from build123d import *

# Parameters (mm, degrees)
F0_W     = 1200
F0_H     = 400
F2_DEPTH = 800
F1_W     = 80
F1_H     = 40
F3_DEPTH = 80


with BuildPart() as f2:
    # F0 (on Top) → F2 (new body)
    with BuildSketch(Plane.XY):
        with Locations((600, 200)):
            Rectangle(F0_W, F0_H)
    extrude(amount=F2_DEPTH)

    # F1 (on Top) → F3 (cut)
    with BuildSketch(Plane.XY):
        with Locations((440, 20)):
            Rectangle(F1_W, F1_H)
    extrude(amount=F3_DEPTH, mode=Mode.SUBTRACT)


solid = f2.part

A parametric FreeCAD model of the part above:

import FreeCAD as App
import Part
import Sketcher
from FreeCAD import Vector


def add_polygon(sketch, points):
    """Adds a closed chain of lines whose ends are joined by coincident constraints."""
    first, n = sketch.GeometryCount, len(points)
    for a, b in zip(points, points[1:] + points[:1]):
        sketch.addGeometry(Part.LineSegment(App.Vector(*a, 0), App.Vector(*b, 0)), False)
    for i in range(n):
        sketch.addConstraint(Sketcher.Constraint("Coincident", first + i, 2, first + (i + 1) % n, 1))

doc = App.newDocument("Part")
body = doc.addObject("PartDesign::Body", "Body")

# Sketch on XY plane
sketch1 = body.newObject("Sketcher::SketchObject", "Sketch")
sketch1.AttachmentSupport = (doc.getObject("XY_Plane"), [""])
sketch1.MapMode = "FlatFace"
add_polygon(sketch1, [(0, 400), (0, 0), (1200, 0), (1200, 400)])  # lines 0-3
sketch1.addConstraint(Sketcher.Constraint("Vertical", 0))
sketch1.addConstraint(Sketcher.Constraint("Horizontal", 1))
sketch1.addConstraint(Sketcher.Constraint("Vertical", 2))
sketch1.addConstraint(Sketcher.Constraint("Horizontal", 3))
sketch1.addConstraint(Sketcher.Constraint("Coincident", 0, 2, -1, 1))
sketch1.addConstraint(Sketcher.Constraint("DistanceX", 1, 1, 1, 2, 1200.0))
sketch1.addConstraint(Sketcher.Constraint("DistanceY", 0, 2, 0, 1, 400.0))
pad1 = body.newObject("PartDesign::Pad", "Pad")
pad1.Profile = sketch1
pad1.Length = 800

# Sketch on XY plane
sketch2 = body.newObject("Sketcher::SketchObject", "Sketch001")
sketch2.AttachmentSupport = (doc.getObject("XY_Plane"), [""])
sketch2.MapMode = "FlatFace"
add_polygon(sketch2, [(400, 40), (400, 0), (480, 0), (480, 40)])  # lines 0-3
sketch2.addConstraint(Sketcher.Constraint("Vertical", 0))
sketch2.addConstraint(Sketcher.Constraint("Horizontal", 1))
sketch2.addConstraint(Sketcher.Constraint("Vertical", 2))
sketch2.addConstraint(Sketcher.Constraint("Horizontal", 3))
sketch2.addConstraint(Sketcher.Constraint("PointOnObject", 0, 2, -1))
sketch2.addConstraint(Sketcher.Constraint("DistanceX", 1, 1, 1, 2, 80.0))
sketch2.addConstraint(Sketcher.Constraint("DistanceY", 0, 2, 0, 1, 40.0))
sketch2.addConstraint(Sketcher.Constraint("DistanceX", -1, 1, 0, 2, 400.0))
pocket1 = body.newObject("PartDesign::Pocket", "Pocket")
pocket1.Profile = sketch2
pocket1.Length = 80
pocket1.Reversed = True

doc.recompute()
